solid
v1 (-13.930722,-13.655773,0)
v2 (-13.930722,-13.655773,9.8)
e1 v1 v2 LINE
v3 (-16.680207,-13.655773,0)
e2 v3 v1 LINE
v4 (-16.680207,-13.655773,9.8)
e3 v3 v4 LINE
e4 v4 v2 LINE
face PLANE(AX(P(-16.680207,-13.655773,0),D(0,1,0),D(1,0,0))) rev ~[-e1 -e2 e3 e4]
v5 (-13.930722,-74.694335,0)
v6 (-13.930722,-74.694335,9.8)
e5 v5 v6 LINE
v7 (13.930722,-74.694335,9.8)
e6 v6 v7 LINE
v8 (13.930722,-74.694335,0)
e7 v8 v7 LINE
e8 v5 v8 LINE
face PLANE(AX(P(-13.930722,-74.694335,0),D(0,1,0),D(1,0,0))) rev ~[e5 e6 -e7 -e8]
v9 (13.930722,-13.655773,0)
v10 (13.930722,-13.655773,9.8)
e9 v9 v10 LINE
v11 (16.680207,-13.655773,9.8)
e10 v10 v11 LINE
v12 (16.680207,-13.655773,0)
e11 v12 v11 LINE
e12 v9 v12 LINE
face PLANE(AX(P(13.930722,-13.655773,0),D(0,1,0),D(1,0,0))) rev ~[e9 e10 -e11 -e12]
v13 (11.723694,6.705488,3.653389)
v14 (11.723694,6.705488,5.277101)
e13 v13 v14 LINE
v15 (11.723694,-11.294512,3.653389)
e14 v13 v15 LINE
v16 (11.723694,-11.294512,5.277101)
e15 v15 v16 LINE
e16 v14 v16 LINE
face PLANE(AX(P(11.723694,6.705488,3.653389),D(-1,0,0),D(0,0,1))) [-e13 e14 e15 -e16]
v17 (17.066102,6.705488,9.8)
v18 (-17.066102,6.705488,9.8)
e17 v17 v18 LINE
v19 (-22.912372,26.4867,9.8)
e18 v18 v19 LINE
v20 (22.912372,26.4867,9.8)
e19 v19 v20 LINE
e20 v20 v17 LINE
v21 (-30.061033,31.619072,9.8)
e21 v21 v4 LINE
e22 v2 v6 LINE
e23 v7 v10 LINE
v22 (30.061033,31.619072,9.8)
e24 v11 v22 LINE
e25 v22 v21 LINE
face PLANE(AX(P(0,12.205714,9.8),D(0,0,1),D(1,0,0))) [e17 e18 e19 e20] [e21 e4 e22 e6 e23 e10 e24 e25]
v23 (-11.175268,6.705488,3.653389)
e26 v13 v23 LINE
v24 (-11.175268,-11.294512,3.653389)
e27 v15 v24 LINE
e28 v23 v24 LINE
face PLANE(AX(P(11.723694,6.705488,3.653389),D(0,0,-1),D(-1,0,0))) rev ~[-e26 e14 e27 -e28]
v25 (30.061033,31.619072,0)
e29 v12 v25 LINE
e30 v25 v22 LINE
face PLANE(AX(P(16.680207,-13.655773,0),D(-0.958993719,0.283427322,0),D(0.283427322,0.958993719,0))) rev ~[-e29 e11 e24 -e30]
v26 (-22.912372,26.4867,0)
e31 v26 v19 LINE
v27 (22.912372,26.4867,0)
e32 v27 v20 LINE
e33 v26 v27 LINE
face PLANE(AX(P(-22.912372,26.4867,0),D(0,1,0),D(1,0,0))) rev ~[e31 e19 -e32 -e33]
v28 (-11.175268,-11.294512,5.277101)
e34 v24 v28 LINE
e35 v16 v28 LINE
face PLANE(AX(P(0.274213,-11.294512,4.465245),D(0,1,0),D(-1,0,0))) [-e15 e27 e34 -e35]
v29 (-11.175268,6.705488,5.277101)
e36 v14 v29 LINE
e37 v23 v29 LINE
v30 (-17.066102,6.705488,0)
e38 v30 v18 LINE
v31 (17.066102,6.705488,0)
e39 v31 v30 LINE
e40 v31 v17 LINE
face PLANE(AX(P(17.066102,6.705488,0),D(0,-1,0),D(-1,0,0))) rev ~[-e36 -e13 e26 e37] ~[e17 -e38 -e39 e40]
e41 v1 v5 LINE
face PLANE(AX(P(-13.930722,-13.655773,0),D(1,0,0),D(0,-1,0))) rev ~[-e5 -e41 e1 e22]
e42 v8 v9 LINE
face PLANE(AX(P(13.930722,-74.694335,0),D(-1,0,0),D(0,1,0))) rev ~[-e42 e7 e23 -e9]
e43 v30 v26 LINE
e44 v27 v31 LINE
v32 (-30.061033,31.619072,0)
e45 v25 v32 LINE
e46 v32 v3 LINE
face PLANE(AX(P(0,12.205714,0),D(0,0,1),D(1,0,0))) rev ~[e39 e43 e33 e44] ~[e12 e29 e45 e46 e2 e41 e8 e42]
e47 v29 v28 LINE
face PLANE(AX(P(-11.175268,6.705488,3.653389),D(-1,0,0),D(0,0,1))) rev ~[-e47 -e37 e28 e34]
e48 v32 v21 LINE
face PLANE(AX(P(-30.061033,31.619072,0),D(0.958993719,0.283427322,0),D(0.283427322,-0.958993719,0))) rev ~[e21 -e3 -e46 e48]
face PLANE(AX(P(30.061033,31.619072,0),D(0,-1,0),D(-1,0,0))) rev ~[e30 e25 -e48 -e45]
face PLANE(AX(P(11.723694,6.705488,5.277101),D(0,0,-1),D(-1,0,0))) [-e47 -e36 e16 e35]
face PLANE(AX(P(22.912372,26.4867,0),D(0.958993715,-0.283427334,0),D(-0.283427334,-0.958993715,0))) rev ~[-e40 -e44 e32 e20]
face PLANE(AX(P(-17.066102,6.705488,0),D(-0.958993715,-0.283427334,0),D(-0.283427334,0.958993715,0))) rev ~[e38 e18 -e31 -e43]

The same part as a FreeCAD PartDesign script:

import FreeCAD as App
import Part
import Sketcher
from FreeCAD import Vector


def add_polygon(sketch, points):
    """Adds a closed chain of lines whose ends are joined by coincident constraints."""
    first, n = sketch.GeometryCount, len(points)
    for a, b in zip(points, points[1:] + points[:1]):
        sketch.addGeometry(Part.LineSegment(App.Vector(*a, 0), App.Vector(*b, 0)), False)
    for i in range(n):
        sketch.addConstraint(Sketcher.Constraint("Coincident", first + i, 2, first + (i + 1) % n, 1))

doc = App.newDocument("Part")
body = doc.addObject("PartDesign::Body", "Body")

sketch1 = body.newObject("Sketcher::SketchObject", "Sketch")
sketch1.AttachmentSupport = (doc.getObject("XY_Plane"), [""])
sketch1.MapMode = "FlatFace"
add_polygon(sketch1, [(30.1, 31.6), (-30.1, 31.6), (-16.7, -13.7), (-13.9, -13.7), (-13.9, -74.7), (13.9, -74.7), (13.9, -13.7), (16.7, -13.7)])
add_polygon(sketch1, [(17.1, 6.7), (-17.1, 6.7), (-22.9, 26.5), (22.9, 26.5)])
sketch1.addConstraint(Sketcher.Constraint("Horizontal", 0))
sketch1.addConstraint(Sketcher.Constraint("Horizontal", 2))
sketch1.addConstraint(Sketcher.Constraint("Vertical", 3))
sketch1.addConstraint(Sketcher.Constraint("Horizontal", 4))
sketch1.addConstraint(Sketcher.Constraint("Vertical", 5))
sketch1.addConstraint(Sketcher.Constraint("Horizontal", 6))
sketch1.addConstraint(Sketcher.Constraint("Horizontal", 8))
sketch1.addConstraint(Sketcher.Constraint("Horizontal", 10))
sketch1.addConstraint(Sketcher.Constraint("Symmetric", 2, 2, 5, 2, -2))
sketch1.addConstraint(Sketcher.Constraint("Parallel", 1, 9))
sketch1.addConstraint(Sketcher.Constraint("Parallel", 7, 11))
sketch1.addConstraint(Sketcher.Constraint("Equal", 2, 6))
sketch1.addConstraint(Sketcher.Constraint("Equal", 1, 7))
sketch1.addConstraint(Sketcher.Constraint("DistanceY", -1, 1, 9, 2, 26.4867))
sketch1.addConstraint(Sketcher.Constraint("Distance", 9, 20.627051))
sketch1.addConstraint(Sketcher.Constraint("DistanceX", 0, 2, 0, 1, 60.122066))
sketch1.addConstraint(Sketcher.Constraint("DistanceX", 2, 1, 2, 2, 2.749485))
sketch1.addConstraint(Sketcher.Constraint("DistanceX", 4, 1, 4, 2, 27.861444))
sketch1.addConstraint(Sketcher.Constraint("DistanceX", 8, 2, 8, 1, 34.132204))
sketch1.addConstraint(Sketcher.Constraint("DistanceX", 10, 1, 10, 2, 45.824744))
sketch1.addConstraint(Sketcher.Constraint("DistanceY", 3, 2, 3, 1, 61.038562))
sketch1.addConstraint(Sketcher.Constraint("DistanceY", -1, 1, 0, 2, 31.619072))
sketch1.addConstraint(Sketcher.Constraint("DistanceX", 8, 2, 2, 2, 3.13538))
pad1 = body.newObject("PartDesign::Pad", "Pad")
pad1.Profile = sketch1
pad1.Length = 9.8

sketch2 = body.newObject("Sketcher::SketchObject", "Sketch001")
sketch2.AttachmentSupport = (doc.getObject("XZ_Plane"), [""])
sketch2.MapMode = "FlatFace"
sketch2.AttachmentOffset = App.Placement(Vector(0, 0, -6.705488), App.Rotation())
add_polygon(sketch2, [(11.7, 5.3), (11.7, 3.7), (-11.2, 3.7), (-11.2, 5.3)])
sketch2.addConstraint(Sketcher.Constraint("Vertical", 0))
sketch2.addConstraint(Sketcher.Constraint("Horizontal", 1))
sketch2.addConstraint(Sketcher.Constraint("Vertical", 2))
sketch2.addConstraint(Sketcher.Constraint("Horizontal", 3))
sketch2.addConstraint(Sketcher.Constraint("DistanceY", -1, 1, 2, 2, 5.277101))
sketch2.addConstraint(Sketcher.Constraint("DistanceX", 1, 2, 1, 1, 22.898962))
sketch2.addConstraint(Sketcher.Constraint("DistanceY", 0, 2, 0, 1, 1.623713))
sketch2.addConstraint(Sketcher.Constraint("DistanceX", 1, 2, -1, 1, 11.175268))
pocket1 = body.newObject("PartDesign::Pocket", "Pocket")
pocket1.Profile = sketch2
pocket1.Length = 18
pocket1.Reversed = True

doc.recompute()
